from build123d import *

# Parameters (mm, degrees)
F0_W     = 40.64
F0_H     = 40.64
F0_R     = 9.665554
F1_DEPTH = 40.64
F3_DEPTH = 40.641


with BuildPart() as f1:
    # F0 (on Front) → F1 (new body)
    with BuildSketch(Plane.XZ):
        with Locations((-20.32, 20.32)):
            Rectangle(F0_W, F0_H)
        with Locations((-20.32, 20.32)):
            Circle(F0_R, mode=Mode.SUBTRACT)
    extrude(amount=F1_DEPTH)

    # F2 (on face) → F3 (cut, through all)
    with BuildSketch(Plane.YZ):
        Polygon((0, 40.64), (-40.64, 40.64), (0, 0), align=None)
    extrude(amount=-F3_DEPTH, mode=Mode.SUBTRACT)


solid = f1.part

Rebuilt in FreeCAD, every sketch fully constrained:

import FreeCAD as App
import Part
import Sketcher
Q = App.Units.Quantity


def add_polygon(sketch, points):
    """Adds a closed chain of lines whose ends are joined by coincident constraints."""
    first, n = sketch.GeometryCount, len(points)
    for a, b in zip(points, points[1:] + points[:1]):
        sketch.addGeometry(Part.LineSegment(App.Vector(*a, 0), App.Vector(*b, 0)), False)
    for i in range(n):
        sketch.addConstraint(Sketcher.Constraint("Coincident", first + i, 2, first + (i + 1) % n, 1))

doc = App.newDocument("Part")
body = doc.addObject("PartDesign::Body", "Body")

sketch1 = body.newObject("Sketcher::SketchObject", "Sketch")
sketch1.AttachmentSupport = (doc.getObject("XZ_Plane"), [""])
sketch1.MapMode = "FlatFace"
add_polygon(sketch1, [(-40.64, 40.64), (-40.64, 0), (0, 0), (0, 40.64)])
sketch1.addGeometry(Part.Circle(App.Vector(-20.32, 20.32, 0), App.Vector(0, 0, 1), 9.665554), False)
sketch1.addConstraint([
    Sketcher.Constraint("Vertical", 0),
    Sketcher.Constraint("Horizontal", 1),
    Sketcher.Constraint("Vertical", 2),
    Sketcher.Constraint("Horizontal", 3),
    Sketcher.Constraint("Coincident", 1, 2, -1, 1),
    Sketcher.Constraint("Equal", 3, 0),
    Sketcher.Constraint("DistanceX", 1, 1, 1, 2, Q("1.6 in")),
    Sketcher.Constraint("DistanceX", 4, 3, -1, 1, Q("0.8 in")),
    Sketcher.Constraint("DistanceY", -1, 1, 4, 3, Q("0.8 in")),
    Sketcher.Constraint("Diameter", 4, Q("19.331108 mm")),
])
pad1 = body.newObject("PartDesign::Pad", "Pad")
pad1.Profile = sketch1
pad1.Length = Q("1.6 in")

sketch2 = body.newObject("Sketcher::SketchObject", "Sketch001")
sketch2.AttachmentSupport = (doc.getObject("YZ_Plane"), [""])
sketch2.MapMode = "FlatFace"
add_polygon(sketch2, [(0, 40.64), (-40.64, 40.64), (0, 0)])
sketch2.addConstraint([
    Sketcher.Constraint("Horizontal", 0),
    Sketcher.Constraint("Vertical", 2),
    Sketcher.Constraint("Coincident", 1, 2, -1, 1),
    Sketcher.Constraint("Equal", 0, 2),
    Sketcher.Constraint("DistanceX", 0, 2, 0, 1, Q("1.6 in")),
])
pocket1 = body.newObject("PartDesign::Pocket", "Pocket")
pocket1.Profile = sketch2
pocket1.Type = "ThroughAll"

doc.recompute()
